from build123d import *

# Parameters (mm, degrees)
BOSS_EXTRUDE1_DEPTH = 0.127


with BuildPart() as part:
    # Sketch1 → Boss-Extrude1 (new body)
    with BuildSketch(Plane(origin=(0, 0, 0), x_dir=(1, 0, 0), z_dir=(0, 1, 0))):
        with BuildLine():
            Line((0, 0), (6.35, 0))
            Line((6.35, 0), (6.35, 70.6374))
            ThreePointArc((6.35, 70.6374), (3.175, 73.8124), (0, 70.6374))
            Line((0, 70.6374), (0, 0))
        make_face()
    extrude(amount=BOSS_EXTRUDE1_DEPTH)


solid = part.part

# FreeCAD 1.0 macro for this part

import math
import FreeCAD as App
import Part
import Sketcher
from FreeCAD import Vector
Q = App.Units.Quantity

doc = App.newDocument("Part")
body = doc.addObject("PartDesign::Body", "Body")

sketch1 = doc.addObject("Sketcher::SketchObject", "Sketch")
body.addObject(sketch1)
sketch1.AttachmentSupport = (doc.XZ_Plane, [""])
sketch1.MapMode = "FlatFace"
sketch1.addGeometry([
    Part.LineSegment(Vector(0, 0, 0), Vector(6.3, 0, 0)),
    Part.LineSegment(Vector(6.3, 0, 0), Vector(6.3, -70.6, 0)),
    Part.ArcOfCircle(Part.Circle(Vector(3.2, -70.6, 0), Vector(0, 0, 1), 3.2), math.radians(180), math.radians(360)),
    Part.LineSegment(Vector(0, -70.6, 0), Vector(0, 0, 0)),
], False)
sketch1.addConstraint([
    Sketcher.Constraint("Coincident", 0, 2, 1, 1),
    Sketcher.Constraint("Tangent", 1, 2, 2, 2),
    Sketcher.Constraint("Tangent", 2, 1, 3, 1),
    Sketcher.Constraint("Coincident", 3, 2, 0, 1),
    Sketcher.Constraint("Horizontal", 0),
    Sketcher.Constraint("Vertical", 1),
    Sketcher.Constraint("Vertical", 3),
    Sketcher.Constraint("Coincident", 3, 2, -1, 1),
    Sketcher.Constraint("Radius", 2, Q("0.125 in")),
    Sketcher.Constraint("DistanceY", 1, 2, 1, 1, Q("2.781 in")),
])
pad1 = doc.addObject("PartDesign::Pad", "Pad")
body.addObject(pad1)
pad1.Profile = sketch1
pad1.Length = Q("0.005 in")
pad1.Reversed = True

doc.recompute()
